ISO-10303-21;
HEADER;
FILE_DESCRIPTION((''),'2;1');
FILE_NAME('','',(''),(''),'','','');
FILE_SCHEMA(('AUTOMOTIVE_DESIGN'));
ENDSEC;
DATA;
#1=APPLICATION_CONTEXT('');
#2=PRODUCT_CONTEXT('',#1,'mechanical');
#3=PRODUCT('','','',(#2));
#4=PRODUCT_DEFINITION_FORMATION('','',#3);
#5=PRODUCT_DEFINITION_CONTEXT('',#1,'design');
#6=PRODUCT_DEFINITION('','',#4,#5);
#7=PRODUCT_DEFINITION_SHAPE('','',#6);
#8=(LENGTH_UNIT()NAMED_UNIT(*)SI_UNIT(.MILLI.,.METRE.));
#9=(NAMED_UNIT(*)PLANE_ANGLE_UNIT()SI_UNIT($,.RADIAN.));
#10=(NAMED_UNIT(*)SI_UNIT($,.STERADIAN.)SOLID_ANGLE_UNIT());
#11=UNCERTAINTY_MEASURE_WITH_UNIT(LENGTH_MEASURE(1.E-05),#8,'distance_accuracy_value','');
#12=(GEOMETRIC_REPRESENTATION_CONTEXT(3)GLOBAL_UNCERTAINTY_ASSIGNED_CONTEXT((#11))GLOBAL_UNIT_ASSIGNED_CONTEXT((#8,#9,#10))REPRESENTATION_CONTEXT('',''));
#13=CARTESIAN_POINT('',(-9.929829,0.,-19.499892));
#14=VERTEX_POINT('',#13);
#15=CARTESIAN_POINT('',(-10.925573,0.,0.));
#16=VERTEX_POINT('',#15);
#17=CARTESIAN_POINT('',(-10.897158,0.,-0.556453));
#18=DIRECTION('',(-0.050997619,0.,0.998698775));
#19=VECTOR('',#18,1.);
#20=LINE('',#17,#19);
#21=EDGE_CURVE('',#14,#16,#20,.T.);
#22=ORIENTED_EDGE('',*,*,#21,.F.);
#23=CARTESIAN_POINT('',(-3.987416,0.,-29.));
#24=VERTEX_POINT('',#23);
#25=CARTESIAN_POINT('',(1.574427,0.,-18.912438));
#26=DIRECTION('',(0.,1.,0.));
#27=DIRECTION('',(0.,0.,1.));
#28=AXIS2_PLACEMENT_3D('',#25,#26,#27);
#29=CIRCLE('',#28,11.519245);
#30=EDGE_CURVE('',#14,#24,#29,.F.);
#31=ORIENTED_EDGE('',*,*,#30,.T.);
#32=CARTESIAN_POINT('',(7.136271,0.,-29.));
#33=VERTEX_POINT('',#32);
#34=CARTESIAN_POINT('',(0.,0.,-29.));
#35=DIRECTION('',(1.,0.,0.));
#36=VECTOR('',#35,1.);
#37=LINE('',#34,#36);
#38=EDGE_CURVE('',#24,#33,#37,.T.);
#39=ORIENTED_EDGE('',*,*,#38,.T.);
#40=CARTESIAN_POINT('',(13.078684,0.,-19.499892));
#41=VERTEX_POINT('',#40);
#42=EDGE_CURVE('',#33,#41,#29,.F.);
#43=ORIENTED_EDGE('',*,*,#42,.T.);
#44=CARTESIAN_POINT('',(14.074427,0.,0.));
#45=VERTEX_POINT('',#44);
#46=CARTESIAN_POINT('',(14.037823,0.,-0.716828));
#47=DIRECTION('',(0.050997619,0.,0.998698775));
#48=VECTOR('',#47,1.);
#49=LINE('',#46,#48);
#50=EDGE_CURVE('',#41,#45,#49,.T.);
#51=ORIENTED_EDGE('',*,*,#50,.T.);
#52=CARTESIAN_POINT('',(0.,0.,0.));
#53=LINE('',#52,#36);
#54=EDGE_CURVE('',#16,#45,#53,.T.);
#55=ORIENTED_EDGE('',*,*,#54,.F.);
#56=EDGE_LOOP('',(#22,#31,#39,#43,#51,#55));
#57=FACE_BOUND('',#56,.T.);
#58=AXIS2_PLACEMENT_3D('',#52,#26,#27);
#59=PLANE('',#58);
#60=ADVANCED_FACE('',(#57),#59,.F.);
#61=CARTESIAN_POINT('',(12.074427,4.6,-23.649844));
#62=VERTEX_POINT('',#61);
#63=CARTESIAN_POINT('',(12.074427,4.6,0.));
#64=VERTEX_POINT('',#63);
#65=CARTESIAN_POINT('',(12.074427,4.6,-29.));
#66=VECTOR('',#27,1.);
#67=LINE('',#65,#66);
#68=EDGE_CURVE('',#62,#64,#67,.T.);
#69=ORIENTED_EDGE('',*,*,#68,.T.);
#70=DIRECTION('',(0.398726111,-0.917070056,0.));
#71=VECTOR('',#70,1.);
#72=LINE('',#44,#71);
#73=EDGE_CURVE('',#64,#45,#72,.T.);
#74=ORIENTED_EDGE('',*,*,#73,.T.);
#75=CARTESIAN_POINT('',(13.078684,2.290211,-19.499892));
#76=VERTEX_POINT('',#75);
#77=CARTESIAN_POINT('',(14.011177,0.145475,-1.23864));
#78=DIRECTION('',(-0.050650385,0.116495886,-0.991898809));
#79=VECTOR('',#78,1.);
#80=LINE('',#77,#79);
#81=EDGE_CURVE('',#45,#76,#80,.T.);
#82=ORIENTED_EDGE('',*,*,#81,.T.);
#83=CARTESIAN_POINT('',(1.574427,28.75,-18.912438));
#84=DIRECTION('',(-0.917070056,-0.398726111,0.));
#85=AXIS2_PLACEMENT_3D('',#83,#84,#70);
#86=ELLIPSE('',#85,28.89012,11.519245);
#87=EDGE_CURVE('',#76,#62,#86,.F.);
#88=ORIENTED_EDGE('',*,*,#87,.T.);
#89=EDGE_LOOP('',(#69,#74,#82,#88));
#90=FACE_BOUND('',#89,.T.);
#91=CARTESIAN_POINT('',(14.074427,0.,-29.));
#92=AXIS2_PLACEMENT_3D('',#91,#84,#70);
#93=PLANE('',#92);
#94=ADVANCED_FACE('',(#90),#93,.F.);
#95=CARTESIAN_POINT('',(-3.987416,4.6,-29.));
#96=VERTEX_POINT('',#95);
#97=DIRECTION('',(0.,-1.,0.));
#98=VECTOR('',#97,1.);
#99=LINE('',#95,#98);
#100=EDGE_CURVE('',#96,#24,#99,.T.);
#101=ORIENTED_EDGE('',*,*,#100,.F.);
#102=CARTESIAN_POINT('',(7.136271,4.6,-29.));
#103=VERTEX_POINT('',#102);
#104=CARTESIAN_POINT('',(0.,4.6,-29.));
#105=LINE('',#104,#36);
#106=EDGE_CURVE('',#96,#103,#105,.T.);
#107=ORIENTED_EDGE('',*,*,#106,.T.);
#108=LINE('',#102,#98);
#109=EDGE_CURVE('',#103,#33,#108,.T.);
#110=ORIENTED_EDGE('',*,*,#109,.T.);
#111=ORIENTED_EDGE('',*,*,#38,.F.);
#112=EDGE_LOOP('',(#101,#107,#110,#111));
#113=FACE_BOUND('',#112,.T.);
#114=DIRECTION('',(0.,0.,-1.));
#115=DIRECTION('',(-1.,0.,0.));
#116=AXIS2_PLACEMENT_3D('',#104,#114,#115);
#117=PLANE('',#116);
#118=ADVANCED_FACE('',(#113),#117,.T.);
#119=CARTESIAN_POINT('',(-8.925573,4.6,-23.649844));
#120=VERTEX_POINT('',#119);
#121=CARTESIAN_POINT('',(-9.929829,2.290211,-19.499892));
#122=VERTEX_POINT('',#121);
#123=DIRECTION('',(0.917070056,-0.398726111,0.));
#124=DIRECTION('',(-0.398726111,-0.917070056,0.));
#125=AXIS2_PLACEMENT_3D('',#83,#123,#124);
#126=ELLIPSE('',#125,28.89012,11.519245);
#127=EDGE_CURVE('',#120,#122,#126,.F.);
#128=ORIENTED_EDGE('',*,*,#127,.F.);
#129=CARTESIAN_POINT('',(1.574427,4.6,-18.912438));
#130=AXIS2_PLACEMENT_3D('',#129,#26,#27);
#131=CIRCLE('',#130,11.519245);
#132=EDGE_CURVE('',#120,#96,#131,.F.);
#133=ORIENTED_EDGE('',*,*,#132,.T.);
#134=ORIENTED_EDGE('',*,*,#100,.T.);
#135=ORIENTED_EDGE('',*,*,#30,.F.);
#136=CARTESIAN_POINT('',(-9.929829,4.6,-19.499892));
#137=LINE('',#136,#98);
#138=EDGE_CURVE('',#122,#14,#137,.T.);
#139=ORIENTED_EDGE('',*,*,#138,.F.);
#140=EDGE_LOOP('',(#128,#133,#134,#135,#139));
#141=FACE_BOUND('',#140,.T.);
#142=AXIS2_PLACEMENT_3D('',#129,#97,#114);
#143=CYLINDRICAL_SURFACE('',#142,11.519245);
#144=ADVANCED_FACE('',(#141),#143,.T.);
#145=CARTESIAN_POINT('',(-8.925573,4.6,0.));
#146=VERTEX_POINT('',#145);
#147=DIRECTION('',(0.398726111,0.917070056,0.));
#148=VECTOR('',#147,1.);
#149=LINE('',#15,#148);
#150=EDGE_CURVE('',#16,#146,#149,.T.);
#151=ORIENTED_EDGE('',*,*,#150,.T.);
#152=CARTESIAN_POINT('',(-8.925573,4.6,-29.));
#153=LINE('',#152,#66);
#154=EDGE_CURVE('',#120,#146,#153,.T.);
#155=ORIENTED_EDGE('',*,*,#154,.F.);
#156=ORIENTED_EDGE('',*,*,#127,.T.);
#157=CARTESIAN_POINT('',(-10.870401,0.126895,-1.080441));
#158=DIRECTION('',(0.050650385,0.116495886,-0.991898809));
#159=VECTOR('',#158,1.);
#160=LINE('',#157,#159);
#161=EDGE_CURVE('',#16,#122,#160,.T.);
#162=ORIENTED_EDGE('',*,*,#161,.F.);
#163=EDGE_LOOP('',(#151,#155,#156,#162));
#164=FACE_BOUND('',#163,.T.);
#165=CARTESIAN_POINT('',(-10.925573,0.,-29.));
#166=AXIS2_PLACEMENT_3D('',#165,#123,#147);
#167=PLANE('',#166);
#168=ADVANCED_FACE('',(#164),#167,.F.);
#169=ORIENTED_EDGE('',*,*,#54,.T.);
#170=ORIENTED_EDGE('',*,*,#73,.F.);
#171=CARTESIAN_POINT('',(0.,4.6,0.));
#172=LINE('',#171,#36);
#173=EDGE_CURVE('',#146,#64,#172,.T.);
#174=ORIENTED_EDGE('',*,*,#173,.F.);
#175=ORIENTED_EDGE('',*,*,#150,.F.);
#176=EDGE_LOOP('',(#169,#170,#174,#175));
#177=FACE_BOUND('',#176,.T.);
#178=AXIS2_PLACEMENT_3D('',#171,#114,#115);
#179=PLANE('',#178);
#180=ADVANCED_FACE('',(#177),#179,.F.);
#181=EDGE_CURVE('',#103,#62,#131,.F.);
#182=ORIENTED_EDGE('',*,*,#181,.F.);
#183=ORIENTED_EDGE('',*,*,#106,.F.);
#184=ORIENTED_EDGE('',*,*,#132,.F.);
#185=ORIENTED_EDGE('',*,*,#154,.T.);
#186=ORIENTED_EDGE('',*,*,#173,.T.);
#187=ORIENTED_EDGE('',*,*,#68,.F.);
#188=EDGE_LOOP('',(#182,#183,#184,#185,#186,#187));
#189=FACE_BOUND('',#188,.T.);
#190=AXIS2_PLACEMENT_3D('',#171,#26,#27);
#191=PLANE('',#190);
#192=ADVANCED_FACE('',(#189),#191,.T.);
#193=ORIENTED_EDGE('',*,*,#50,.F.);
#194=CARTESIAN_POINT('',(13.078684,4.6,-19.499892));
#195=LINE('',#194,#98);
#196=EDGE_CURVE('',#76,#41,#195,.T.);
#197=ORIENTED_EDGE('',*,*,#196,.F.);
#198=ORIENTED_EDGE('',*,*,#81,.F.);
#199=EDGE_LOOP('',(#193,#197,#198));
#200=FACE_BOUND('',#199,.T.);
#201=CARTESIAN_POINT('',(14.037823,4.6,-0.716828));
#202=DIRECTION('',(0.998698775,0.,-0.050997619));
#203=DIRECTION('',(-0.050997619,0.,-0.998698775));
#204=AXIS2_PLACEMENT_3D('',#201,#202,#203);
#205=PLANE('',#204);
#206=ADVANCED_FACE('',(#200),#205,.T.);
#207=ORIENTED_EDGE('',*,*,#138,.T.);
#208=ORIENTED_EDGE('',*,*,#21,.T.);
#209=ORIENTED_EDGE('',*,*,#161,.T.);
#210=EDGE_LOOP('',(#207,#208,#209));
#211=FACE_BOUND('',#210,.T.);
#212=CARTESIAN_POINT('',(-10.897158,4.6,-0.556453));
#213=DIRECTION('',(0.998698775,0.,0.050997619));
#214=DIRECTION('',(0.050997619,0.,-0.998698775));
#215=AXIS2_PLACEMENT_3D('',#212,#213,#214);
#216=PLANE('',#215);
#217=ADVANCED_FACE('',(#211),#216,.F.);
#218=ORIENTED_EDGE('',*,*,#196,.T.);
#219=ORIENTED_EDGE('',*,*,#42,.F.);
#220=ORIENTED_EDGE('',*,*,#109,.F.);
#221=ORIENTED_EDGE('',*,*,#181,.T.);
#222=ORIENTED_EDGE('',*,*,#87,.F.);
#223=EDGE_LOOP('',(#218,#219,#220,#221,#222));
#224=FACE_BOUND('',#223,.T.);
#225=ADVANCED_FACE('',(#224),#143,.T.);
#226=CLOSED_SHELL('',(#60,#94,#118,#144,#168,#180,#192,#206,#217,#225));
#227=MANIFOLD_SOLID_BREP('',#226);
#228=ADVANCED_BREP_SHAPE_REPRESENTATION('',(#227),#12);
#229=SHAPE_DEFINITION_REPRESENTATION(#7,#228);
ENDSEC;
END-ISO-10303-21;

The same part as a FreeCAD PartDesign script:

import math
import FreeCAD as App
import Part
import Sketcher

V = App.Vector
Q = App.Units.Quantity

doc = App.newDocument("Part")
body = doc.addObject("PartDesign::Body", "Body")

sketch1 = body.newObject("Sketcher::SketchObject", "Sketch")
sketch1.AttachmentSupport = (doc.getObject("XZ_Plane"), [""])
sketch1.MapMode = "FlatFace"
sketch1.addGeometry([
    Part.LineSegment(V(-11, 0, 0), V(14, 0, 0)),
    Part.LineSegment(V(14, 0, 0), V(13, -19, 0)),
    Part.ArcOfCircle(Part.Circle(V(2, -19, 0), V(0, 0, 1), 12), math.radians(-61), math.radians(-3)),
    Part.LineSegment(V(7, -29, 0), V(-4, -29, 0)),
    Part.ArcOfCircle(Part.Circle(V(2, -19, 0), V(0, 0, 1), 12), math.radians(-177), math.radians(-119)),
    Part.LineSegment(V(-10, -19, 0), V(-11, 0, 0)),
], False)
sketch1.addConstraint([
    Sketcher.Constraint("Coincident", 0, 2, 1, 1),
    Sketcher.Constraint("Tangent", 1, 2, 2, 2),
    Sketcher.Constraint("Coincident", 2, 1, 3, 1),
    Sketcher.Constraint("Coincident", 3, 2, 4, 2),
    Sketcher.Constraint("Tangent", 4, 1, 5, 1),
    Sketcher.Constraint("Coincident", 5, 2, 0, 1),
    Sketcher.Constraint("Horizontal", 0),
    Sketcher.Constraint("Horizontal", 3),
    Sketcher.Constraint("Coincident", 4, 3, 2, 3),
    Sketcher.Constraint("Equal", 2, 4),
    Sketcher.Constraint("PointOnObject", 0, 2, -1),
    Sketcher.Constraint("Horizontal", 1, 2, 4, 1),
    Sketcher.Constraint("DistanceX", 0, 1, 0, 2, Q("25 mm")),
    Sketcher.Constraint("DistanceY", 2, 1, -1, 1, Q("29 mm")),
    Sketcher.Constraint("Radius", 2, Q("11.519245 mm")),
    Sketcher.Constraint("Distance", 1, Q("19.525299 mm")),
    Sketcher.Constraint("DistanceX", -1, 1, 2, 1, Q("7.136271 mm")),
])
pad1 = body.newObject("PartDesign::Pad", "Pad")
pad1.Profile = sketch1
pad1.Length = 4.6
pad1.Reversed = True

sketch2 = body.newObject("Sketcher::SketchObject", "Sketch001")
sketch2.AttachmentSupport = (doc.getObject("XY_Plane"), [""])
sketch2.MapMode = "FlatFace"
sketch2.addGeometry([
    Part.LineSegment(V(-10.9, 0, 0), V(-8.9, 4.6, 0)),
    Part.LineSegment(V(-8.9, 4.6, 0), V(-10.9, 4.6, 0)),
    Part.LineSegment(V(-10.9, 4.6, 0), V(-10.9, 0, 0)),
    Part.LineSegment(V(14.1, 4.6, 0), V(12.1, 4.6, 0)),
    Part.LineSegment(V(12.1, 4.6, 0), V(14.1, 0, 0)),
    Part.LineSegment(V(14.1, 0, 0), V(14.1, 4.6, 0)),
], False)
sketch2.addConstraint([
    Sketcher.Constraint("Coincident", 0, 2, 1, 1),
    Sketcher.Constraint("Coincident", 1, 2, 2, 1),
    Sketcher.Constraint("Coincident", 2, 2, 0, 1),
    Sketcher.Constraint("Coincident", 3, 2, 4, 1),
    Sketcher.Constraint("Coincident", 4, 2, 5, 1),
    Sketcher.Constraint("Coincident", 5, 2, 3, 1),
    Sketcher.Constraint("Horizontal", 1),
    Sketcher.Constraint("Vertical", 2),
    Sketcher.Constraint("Horizontal", 3),
    Sketcher.Constraint("Vertical", 5),
    Sketcher.Constraint("PointOnObject", 2, 2, -1),
    Sketcher.Constraint("PointOnObject", 4, 2, -1),
    Sketcher.Constraint("Horizontal", 1, 2, 3, 2),
    Sketcher.Constraint("Equal", 1, 3),
    Sketcher.Constraint("DistanceX", 1, 2, 1, 1, Q("2 mm")),
    Sketcher.Constraint("DistanceY", 2, 2, 2, 1, Q("4.6 mm")),
    Sketcher.Constraint("DistanceX", 0, 2, 3, 2, Q("21 mm")),
    Sketcher.Constraint("DistanceX", 0, 2, -1, 1, Q("8.925573 mm")),
])
pocket1 = body.newObject("PartDesign::Pocket", "Pocket")
pocket1.Profile = sketch2
pocket1.Type = "ThroughAll"

doc.recompute()
